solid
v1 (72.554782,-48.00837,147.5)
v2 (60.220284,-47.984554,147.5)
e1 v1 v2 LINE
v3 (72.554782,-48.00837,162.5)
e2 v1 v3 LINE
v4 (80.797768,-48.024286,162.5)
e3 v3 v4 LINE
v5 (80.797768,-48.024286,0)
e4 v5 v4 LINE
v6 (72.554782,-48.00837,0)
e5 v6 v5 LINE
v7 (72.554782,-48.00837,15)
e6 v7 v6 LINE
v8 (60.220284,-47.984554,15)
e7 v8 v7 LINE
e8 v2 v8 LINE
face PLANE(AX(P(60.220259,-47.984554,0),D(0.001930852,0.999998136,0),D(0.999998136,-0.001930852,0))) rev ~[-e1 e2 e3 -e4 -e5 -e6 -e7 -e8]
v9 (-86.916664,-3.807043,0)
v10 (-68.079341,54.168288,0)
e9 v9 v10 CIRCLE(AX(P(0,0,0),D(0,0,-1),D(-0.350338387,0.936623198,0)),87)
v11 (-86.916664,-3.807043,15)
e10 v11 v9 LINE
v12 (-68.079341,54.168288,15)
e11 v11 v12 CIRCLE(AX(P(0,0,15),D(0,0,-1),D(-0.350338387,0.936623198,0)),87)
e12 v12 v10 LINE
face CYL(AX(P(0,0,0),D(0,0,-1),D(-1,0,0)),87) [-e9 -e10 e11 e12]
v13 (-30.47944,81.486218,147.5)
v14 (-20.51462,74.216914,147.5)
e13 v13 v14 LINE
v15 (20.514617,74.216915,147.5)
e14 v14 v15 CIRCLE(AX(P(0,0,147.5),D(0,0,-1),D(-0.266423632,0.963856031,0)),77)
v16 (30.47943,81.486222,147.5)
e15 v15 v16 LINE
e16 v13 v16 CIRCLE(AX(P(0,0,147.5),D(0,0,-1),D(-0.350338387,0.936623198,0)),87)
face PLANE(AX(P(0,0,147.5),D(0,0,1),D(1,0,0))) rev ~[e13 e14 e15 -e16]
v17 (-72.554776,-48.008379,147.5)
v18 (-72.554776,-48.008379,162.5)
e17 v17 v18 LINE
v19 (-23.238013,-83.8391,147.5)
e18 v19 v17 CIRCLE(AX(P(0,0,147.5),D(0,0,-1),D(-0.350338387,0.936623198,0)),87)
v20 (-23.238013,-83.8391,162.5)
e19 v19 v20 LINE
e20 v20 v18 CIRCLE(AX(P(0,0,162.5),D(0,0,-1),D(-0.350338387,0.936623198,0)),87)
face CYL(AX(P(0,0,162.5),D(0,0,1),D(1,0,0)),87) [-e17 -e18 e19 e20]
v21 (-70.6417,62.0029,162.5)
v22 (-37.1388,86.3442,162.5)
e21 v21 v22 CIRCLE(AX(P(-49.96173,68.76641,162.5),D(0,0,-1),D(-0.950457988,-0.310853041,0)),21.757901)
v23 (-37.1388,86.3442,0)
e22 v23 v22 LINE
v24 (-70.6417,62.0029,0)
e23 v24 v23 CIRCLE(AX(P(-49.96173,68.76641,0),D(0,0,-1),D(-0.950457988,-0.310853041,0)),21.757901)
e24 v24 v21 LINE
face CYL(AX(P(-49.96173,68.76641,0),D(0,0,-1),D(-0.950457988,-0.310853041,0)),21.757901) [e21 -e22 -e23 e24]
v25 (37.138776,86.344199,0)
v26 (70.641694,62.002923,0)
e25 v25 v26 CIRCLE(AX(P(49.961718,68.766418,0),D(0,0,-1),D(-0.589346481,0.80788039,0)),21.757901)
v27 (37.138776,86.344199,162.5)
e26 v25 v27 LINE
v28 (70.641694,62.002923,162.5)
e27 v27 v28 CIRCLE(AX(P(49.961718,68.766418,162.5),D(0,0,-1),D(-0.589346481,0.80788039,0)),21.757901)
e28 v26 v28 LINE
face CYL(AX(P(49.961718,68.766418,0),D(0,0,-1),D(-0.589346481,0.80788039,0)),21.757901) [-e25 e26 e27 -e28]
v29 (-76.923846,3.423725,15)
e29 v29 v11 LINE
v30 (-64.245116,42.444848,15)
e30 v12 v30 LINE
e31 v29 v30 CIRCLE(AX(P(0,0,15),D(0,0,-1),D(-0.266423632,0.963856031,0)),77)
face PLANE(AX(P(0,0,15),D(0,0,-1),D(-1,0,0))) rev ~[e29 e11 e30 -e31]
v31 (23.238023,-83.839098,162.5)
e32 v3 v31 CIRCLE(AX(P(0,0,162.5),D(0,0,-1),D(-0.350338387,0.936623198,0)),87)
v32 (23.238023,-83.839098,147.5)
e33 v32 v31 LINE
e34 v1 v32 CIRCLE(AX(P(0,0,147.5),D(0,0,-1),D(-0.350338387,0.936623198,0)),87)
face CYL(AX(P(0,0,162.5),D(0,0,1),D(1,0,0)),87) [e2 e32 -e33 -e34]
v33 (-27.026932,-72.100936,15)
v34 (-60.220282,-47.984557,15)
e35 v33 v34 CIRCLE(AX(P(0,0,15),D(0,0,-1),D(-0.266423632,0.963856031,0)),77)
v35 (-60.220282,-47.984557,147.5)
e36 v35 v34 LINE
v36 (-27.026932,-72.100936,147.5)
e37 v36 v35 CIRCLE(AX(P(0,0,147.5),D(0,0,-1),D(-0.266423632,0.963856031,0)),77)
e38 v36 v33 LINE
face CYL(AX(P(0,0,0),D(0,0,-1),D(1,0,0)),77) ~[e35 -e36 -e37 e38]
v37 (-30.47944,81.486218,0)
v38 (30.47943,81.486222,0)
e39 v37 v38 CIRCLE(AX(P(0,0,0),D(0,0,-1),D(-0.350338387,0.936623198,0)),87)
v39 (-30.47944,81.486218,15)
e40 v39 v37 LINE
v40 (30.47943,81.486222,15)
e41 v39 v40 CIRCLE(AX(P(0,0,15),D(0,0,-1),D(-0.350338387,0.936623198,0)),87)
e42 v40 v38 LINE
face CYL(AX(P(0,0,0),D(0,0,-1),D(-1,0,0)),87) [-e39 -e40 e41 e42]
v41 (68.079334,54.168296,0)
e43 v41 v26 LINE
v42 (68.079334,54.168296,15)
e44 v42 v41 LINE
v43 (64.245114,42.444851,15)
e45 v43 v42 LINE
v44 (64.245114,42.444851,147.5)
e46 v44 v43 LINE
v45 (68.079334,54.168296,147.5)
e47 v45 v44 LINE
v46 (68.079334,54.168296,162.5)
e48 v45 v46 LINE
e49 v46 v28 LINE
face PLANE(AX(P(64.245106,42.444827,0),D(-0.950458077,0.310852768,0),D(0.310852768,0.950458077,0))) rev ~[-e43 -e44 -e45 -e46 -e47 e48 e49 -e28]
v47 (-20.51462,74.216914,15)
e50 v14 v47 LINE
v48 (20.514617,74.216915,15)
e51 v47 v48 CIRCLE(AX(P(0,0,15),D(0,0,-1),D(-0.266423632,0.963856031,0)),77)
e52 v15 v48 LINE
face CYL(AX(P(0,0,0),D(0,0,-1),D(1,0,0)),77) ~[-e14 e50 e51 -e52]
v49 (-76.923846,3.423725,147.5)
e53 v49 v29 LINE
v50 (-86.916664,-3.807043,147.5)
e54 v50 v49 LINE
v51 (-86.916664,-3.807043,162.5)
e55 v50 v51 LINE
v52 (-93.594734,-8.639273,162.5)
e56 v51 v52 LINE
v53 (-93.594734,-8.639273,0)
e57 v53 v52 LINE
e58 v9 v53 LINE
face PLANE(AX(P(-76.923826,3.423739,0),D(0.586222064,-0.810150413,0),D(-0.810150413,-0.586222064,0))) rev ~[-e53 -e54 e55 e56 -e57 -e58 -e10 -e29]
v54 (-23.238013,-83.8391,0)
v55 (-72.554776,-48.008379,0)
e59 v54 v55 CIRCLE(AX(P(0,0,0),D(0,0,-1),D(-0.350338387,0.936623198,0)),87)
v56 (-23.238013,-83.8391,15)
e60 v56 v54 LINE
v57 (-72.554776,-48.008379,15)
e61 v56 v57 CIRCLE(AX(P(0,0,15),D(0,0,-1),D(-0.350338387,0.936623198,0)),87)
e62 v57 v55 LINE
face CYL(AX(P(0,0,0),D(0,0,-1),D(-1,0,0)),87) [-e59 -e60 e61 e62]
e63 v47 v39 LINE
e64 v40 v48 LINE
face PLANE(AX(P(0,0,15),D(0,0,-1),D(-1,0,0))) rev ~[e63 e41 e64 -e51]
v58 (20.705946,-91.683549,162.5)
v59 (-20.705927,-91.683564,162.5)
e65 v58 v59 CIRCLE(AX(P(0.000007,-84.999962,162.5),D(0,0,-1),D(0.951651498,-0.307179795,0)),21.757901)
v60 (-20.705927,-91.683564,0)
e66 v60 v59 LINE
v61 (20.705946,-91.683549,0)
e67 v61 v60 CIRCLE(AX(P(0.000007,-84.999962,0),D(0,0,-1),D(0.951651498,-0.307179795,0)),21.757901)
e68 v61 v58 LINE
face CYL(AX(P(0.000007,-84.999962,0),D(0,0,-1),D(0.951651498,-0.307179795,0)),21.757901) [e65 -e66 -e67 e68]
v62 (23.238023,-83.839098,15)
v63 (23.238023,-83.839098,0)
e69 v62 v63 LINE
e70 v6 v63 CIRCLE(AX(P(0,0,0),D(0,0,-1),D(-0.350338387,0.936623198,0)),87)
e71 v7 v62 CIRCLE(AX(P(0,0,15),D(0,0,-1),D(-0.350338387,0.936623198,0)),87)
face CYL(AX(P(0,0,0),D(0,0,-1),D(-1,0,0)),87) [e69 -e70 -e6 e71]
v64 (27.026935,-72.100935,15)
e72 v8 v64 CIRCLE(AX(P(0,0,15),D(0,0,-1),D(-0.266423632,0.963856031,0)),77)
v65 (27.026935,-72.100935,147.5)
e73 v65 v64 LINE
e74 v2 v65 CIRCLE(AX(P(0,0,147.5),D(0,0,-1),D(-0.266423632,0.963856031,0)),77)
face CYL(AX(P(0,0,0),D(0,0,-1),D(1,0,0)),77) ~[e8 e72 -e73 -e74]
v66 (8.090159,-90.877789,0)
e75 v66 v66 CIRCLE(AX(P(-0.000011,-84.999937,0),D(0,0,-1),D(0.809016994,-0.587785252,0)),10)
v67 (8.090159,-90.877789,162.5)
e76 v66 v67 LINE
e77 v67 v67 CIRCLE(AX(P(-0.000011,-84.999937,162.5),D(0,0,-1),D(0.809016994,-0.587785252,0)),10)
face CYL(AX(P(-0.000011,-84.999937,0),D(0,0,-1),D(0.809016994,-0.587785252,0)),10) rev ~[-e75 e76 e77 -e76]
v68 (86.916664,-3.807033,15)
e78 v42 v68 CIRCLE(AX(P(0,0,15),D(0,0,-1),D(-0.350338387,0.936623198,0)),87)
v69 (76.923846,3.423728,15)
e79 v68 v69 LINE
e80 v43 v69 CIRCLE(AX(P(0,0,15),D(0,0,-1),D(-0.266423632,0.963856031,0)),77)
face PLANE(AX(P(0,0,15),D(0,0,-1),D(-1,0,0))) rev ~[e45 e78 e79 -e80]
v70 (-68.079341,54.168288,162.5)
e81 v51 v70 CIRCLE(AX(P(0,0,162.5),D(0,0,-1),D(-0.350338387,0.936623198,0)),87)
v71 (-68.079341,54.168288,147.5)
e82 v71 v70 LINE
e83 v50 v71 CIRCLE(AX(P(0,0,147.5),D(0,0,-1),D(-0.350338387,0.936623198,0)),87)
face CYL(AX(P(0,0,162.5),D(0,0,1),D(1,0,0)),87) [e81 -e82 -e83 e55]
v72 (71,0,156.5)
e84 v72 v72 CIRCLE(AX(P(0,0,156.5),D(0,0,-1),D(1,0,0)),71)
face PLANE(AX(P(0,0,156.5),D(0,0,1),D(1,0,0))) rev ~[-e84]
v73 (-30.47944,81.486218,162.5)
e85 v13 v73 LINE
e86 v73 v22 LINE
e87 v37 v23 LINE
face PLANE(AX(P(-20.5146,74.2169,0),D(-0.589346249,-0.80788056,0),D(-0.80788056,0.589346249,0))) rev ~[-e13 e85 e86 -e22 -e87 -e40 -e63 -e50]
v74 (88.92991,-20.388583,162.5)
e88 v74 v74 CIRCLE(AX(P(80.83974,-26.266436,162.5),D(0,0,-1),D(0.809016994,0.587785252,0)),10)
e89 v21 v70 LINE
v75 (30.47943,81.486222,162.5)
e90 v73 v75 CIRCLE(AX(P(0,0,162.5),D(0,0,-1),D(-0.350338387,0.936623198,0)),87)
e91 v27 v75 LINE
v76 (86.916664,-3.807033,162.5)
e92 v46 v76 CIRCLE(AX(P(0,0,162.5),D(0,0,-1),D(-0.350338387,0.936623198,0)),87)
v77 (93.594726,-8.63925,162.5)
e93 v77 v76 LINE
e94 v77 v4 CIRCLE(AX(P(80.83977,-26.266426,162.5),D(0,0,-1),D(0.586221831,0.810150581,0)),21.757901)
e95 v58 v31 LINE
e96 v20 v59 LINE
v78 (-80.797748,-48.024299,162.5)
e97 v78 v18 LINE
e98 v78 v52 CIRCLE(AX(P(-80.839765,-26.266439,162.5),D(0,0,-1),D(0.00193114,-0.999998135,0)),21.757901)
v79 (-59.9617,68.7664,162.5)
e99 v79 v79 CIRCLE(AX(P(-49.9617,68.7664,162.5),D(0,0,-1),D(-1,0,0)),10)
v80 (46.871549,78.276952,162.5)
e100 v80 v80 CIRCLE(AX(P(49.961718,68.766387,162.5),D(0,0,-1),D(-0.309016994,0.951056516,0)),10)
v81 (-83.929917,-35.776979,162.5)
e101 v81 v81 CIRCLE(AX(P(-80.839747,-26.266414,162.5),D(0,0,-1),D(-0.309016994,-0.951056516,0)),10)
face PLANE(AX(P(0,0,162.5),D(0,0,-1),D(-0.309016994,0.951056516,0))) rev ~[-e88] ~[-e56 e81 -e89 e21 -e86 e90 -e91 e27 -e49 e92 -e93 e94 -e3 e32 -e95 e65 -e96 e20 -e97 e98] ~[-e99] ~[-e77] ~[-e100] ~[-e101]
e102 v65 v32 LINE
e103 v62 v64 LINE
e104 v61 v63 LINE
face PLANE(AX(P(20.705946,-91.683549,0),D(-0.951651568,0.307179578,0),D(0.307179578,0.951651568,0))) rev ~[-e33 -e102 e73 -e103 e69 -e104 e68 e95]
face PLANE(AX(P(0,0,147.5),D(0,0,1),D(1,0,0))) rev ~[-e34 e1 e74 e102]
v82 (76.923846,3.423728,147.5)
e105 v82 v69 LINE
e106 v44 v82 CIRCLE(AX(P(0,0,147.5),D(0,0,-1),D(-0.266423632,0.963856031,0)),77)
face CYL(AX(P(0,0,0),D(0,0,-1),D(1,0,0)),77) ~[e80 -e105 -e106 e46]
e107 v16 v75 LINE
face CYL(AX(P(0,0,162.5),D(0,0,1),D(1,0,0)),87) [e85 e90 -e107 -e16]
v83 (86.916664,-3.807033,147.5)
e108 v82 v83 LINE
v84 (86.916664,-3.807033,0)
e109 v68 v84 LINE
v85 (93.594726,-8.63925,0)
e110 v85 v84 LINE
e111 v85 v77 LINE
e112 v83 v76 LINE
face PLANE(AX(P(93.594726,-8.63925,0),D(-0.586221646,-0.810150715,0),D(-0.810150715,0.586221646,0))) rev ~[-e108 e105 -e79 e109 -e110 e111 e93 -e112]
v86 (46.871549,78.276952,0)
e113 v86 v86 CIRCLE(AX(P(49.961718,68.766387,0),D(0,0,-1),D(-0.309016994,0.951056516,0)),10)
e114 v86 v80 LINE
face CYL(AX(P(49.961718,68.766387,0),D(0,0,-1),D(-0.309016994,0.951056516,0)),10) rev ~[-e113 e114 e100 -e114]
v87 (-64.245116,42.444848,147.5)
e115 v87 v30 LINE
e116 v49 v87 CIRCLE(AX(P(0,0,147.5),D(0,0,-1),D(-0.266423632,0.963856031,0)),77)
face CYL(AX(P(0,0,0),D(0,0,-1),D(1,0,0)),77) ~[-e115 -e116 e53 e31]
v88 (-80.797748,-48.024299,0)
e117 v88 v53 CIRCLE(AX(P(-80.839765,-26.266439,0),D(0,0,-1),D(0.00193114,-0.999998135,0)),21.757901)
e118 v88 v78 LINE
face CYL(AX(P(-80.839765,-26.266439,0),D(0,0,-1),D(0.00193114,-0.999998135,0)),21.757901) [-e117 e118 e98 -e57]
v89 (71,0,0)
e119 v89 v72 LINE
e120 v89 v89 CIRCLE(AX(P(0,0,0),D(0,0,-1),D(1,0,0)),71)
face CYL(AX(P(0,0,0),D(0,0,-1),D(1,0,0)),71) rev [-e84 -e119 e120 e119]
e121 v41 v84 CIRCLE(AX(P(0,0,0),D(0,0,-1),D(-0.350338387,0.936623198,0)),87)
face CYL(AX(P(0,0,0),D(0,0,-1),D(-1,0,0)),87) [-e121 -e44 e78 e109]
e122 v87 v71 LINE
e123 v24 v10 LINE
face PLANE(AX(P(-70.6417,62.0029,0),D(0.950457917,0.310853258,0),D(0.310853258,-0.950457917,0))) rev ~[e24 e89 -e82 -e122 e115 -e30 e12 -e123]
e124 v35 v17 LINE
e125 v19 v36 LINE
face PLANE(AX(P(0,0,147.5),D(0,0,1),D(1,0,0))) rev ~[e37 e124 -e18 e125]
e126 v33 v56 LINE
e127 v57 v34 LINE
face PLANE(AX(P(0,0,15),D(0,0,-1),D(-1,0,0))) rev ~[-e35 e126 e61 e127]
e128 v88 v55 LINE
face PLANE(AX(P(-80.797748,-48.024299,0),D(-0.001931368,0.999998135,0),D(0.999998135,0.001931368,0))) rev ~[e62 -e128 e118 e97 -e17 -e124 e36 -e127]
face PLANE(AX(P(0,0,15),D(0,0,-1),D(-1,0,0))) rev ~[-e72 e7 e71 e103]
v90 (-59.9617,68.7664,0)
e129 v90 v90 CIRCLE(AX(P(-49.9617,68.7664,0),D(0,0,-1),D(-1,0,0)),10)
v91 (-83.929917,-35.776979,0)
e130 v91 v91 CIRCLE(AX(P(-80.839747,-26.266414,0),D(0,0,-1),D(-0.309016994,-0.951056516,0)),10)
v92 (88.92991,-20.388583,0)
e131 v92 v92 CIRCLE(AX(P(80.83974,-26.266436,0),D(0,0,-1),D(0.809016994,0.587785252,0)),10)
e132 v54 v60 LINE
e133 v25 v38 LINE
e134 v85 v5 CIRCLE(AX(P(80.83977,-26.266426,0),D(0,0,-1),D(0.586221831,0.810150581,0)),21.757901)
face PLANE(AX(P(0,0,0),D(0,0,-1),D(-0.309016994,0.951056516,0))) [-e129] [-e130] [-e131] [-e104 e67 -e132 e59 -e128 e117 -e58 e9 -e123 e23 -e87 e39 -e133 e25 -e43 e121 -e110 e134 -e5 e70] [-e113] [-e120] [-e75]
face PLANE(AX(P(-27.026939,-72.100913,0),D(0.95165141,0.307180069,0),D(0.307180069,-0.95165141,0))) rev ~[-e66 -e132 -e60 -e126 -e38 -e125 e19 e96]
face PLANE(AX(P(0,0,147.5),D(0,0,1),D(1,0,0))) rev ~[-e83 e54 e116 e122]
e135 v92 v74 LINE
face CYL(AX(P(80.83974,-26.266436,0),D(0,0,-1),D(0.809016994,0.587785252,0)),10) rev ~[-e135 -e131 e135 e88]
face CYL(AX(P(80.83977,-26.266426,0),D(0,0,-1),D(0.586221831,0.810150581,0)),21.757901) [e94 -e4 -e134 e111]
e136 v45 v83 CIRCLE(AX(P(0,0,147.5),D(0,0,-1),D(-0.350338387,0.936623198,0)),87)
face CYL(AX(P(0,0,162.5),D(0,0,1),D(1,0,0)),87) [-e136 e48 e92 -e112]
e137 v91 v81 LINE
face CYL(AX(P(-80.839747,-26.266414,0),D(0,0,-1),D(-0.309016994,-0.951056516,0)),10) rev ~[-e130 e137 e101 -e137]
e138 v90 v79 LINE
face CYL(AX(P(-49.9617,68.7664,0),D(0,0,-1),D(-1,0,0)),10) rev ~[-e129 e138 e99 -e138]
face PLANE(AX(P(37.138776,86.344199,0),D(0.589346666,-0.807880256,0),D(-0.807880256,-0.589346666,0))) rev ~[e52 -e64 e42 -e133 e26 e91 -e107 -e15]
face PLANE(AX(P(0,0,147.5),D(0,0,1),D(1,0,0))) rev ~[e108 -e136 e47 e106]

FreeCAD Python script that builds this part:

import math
import FreeCAD as App
import Part
import Sketcher
from FreeCAD import Vector
Q = App.Units.Quantity


def faces_at(feature, points):
    """Names of the faces that lie closest to the given points."""
    faces = feature.Shape.Faces
    near = lambda p: min(range(len(faces)), key=lambda i: faces[i].distToShape(Part.Vertex(*p))[0])
    return sorted({f"Face{near(p) + 1}" for p in points})

doc = App.newDocument("Part")
body = doc.addObject("PartDesign::Body", "Body")

# Sketch on XY plane
sketch1 = body.newObject("Sketcher::SketchObject", "Sketch")
sketch1.AttachmentSupport = (doc.getObject("XY_Plane"), [""])
sketch1.MapMode = "FlatFace"
sketch1.addGeometry(Part.Circle(Vector(0, 0, 0), Vector(0, 0, 1), 77), False)
sketch1.addConstraint(Sketcher.Constraint("Coincident", 0, 3, -1, 1))
sketch1.addConstraint(Sketcher.Constraint("Diameter", 0, 154.0))
pad1 = body.newObject("PartDesign::Pad", "Pad")
pad1.Profile = sketch1
pad1.Length = 162.5
doc.recompute()

thickness = body.newObject("PartDesign::Thickness", "Thickness")
thickness.Base = (pad1, faces_at(pad1, [(-19.041, -8.128, 0)]))
thickness.Value = 6
thickness.Reversed = True
thickness.Join = "Intersection"

# Sketch on XY plane
sketch2 = body.newObject("Sketcher::SketchObject", "Sketch001")
sketch2.AttachmentSupport = (doc.getObject("XY_Plane"), [""])
sketch2.MapMode = "FlatFace"
sketch2.AttachmentOffset = App.Placement(Vector(0, 0, 162.5), App.Rotation())
sketch2.addGeometry(Part.Circle(Vector(0, 0, 0), Vector(0, 0, 1), 87), False)
sketch2.addGeometry(Part.Circle(Vector(0, 0, 0), Vector(0, 0, 1), 77), False)
sketch2.addConstraint(Sketcher.Constraint("Coincident", 0, 3, -1, 1))
sketch2.addConstraint(Sketcher.Constraint("Coincident", 1, 3, -1, 1))
sketch2.addConstraint(Sketcher.Constraint("Diameter", 0, 174.0))
sketch2.addConstraint(Sketcher.Constraint("Diameter", 1, 154.0))
pad2 = body.newObject("PartDesign::Pad", "Pad001")
pad2.Profile = sketch2
pad2.Length = 15
pad2.Reversed = True

# Sketch on XY plane
sketch3 = body.newObject("Sketcher::SketchObject", "Sketch002")
sketch3.AttachmentSupport = (doc.getObject("XY_Plane"), [""])
sketch3.MapMode = "FlatFace"
sketch3.addGeometry(Part.Circle(Vector(0, 0, 0), Vector(0, 0, 1), 87), False)
sketch3.addGeometry(Part.Circle(Vector(0, 0, 0), Vector(0, 0, 1), 77), False)
sketch3.addConstraint(Sketcher.Constraint("Coincident", 0, 3, -1, 1))
sketch3.addConstraint(Sketcher.Constraint("Coincident", 1, 3, -1, 1))
sketch3.addConstraint(Sketcher.Constraint("Diameter", 0, 174.0))
sketch3.addConstraint(Sketcher.Constraint("Diameter", 1, 154.0))
pad3 = body.newObject("PartDesign::Pad", "Pad002")
pad3.Profile = sketch3
pad3.Length = 15

# Sketch on XY plane
sketch4 = body.newObject("Sketcher::SketchObject", "Sketch003")
sketch4.AttachmentSupport = (doc.getObject("XY_Plane"), [""])
sketch4.MapMode = "FlatFace"
sketch4.addGeometry(Part.LineSegment(Vector(-64, 42, 0), Vector(-71, 62, 0)), False)
sketch4.addGeometry(Part.ArcOfCircle(Part.Circle(Vector(-50, 69, 0), Vector(0, 0, 1), 22), math.radians(54), math.radians(198)), False)
sketch4.addGeometry(Part.LineSegment(Vector(-37, 86, 0), Vector(-21, 74, 0)), False)
sketch4.addGeometry(Part.ArcOfCircle(Part.Circle(Vector(0, 0, 0), Vector(0, 0, 1), 77), math.radians(105), math.radians(147)), False)
sketch4.addConstraint(Sketcher.Constraint("Tangent", 0, 2, 1, 2))
sketch4.addConstraint(Sketcher.Constraint("Tangent", 1, 1, 2, 1))
sketch4.addConstraint(Sketcher.Constraint("Coincident", 2, 2, 3, 1))
sketch4.addConstraint(Sketcher.Constraint("Coincident", 3, 2, 0, 1))
sketch4.addConstraint(Sketcher.Constraint("Coincident", 3, 3, -1, 1))
sketch4.addConstraint(Sketcher.Constraint("Equal", 0, 2))
sketch4.addConstraint(Sketcher.Constraint("Radius", 3, 77.0))
sketch4.addConstraint(Sketcher.Constraint("Radius", 1, 21.758))
sketch4.addConstraint(Sketcher.Constraint("Angle", 0, Q("108.1107 deg")))
sketch4.addConstraint(Sketcher.Constraint("Angle", 2, Q("-36.1106 deg")))
sketch4.addConstraint(Sketcher.Constraint("DistanceY", -1, 1, 0, 2, 62.003))
pad4 = body.newObject("PartDesign::Pad", "Pad003")
pad4.Profile = sketch4
pad4.Length = 162.5
doc.recompute()

polarpattern = body.newObject("PartDesign::PolarPattern", "PolarPattern")
polarpattern.Originals = [pad4]
polarpattern.Axis = (doc.getObject("Z_Axis"), [""])
polarpattern.Angle = 360
polarpattern.Occurrences = 5
body.Tip = polarpattern

# Sketch on XY plane
sketch5 = body.newObject("Sketcher::SketchObject", "Sketch004")
sketch5.AttachmentSupport = (doc.getObject("XY_Plane"), [""])
sketch5.MapMode = "FlatFace"
sketch5.addGeometry(Part.Circle(Vector(-50, 69, 0), Vector(0, 0, 1), 10), False)
sketch5.addConstraint(Sketcher.Constraint("Diameter", 0, 20.0))
sketch5.addConstraint(Sketcher.Constraint("DistanceX", 0, 3, -1, 1, 49.9617))
sketch5.addConstraint(Sketcher.Constraint("DistanceY", -1, 1, 0, 3, 68.7664))
pocket1 = body.newObject("PartDesign::Pocket", "Pocket")
pocket1.Profile = sketch5
pocket1.Type = "UpToFirst"
pocket1.Reversed = True
doc.recompute()

polarpattern2 = body.newObject("PartDesign::PolarPattern", "PolarPattern001")
polarpattern2.Originals = [pocket1]
polarpattern2.Axis = (doc.getObject("Z_Axis"), [""])
polarpattern2.Angle = 360
polarpattern2.Occurrences = 5
body.Tip = polarpattern2

doc.recompute()
